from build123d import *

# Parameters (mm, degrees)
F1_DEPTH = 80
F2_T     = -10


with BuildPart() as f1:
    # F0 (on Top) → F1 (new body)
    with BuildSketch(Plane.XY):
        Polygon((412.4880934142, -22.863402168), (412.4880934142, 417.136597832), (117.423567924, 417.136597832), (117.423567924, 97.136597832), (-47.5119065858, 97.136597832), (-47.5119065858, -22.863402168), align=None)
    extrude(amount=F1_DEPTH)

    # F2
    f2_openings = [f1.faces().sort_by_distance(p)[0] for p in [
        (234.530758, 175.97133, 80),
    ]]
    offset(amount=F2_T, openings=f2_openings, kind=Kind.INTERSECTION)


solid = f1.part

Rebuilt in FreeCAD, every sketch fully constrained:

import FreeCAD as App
import Part
import Sketcher
from FreeCAD import Vector


def faces_at(feature, points):
    """Names of the faces that lie closest to the given points."""
    faces = feature.Shape.Faces
    near = lambda p: min(range(len(faces)), key=lambda i: faces[i].distToShape(Part.Vertex(*p))[0])
    return sorted({f"Face{near(p) + 1}" for p in points})

doc = App.newDocument("Part")
body = doc.addObject("PartDesign::Body", "Body")

# Sketch on XY plane
sketch1 = doc.addObject("Sketcher::SketchObject", "Sketch")
body.addObject(sketch1)
sketch1.AttachmentSupport = (doc.XY_Plane, [""])
sketch1.MapMode = "FlatFace"
sketch1.addGeometry([
    Part.LineSegment(Vector(412, -23, 0), Vector(412, 417, 0)),  # 0
    Part.LineSegment(Vector(412, 417, 0), Vector(117, 417, 0)),  # 1
    Part.LineSegment(Vector(117, 417, 0), Vector(117, 97, 0)),  # 2
    Part.LineSegment(Vector(117, 97, 0), Vector(-48, 97, 0)),  # 3
    Part.LineSegment(Vector(-48, 97, 0), Vector(-48, -23, 0)),  # 4
    Part.LineSegment(Vector(-48, -23, 0), Vector(412, -23, 0)),  # 5
], False)
sketch1.addConstraint([
    Sketcher.Constraint("Coincident", 0, 2, 1, 1),
    Sketcher.Constraint("Coincident", 1, 2, 2, 1),
    Sketcher.Constraint("Coincident", 2, 2, 3, 1),
    Sketcher.Constraint("Coincident", 3, 2, 4, 1),
    Sketcher.Constraint("Coincident", 4, 2, 5, 1),
    Sketcher.Constraint("Coincident", 5, 2, 0, 1),
    Sketcher.Constraint("Vertical", 0),
    Sketcher.Constraint("Horizontal", 1),
    Sketcher.Constraint("Vertical", 2),
    Sketcher.Constraint("Horizontal", 3),
    Sketcher.Constraint("Vertical", 4),
    Sketcher.Constraint("Horizontal", 5),
    Sketcher.Constraint("DistanceX", 5, 1, 5, 2, 460.0),
    Sketcher.Constraint("DistanceY", 0, 1, 0, 2, 440.0),
    Sketcher.Constraint("DistanceY", 2, 2, 2, 1, 320.0),
    Sketcher.Constraint("DistanceX", 1, 2, 1, 1, 295.064525),
    Sketcher.Constraint("DistanceX", -1, 1, 0, 2, 412.488093),
    Sketcher.Constraint("DistanceY", -1, 1, 0, 2, 417.136598),
])
pad1 = doc.addObject("PartDesign::Pad", "Pad")
body.addObject(pad1)
pad1.Profile = sketch1
pad1.Length = 80
doc.recompute()

thickness = doc.addObject("PartDesign::Thickness", "Thickness")
body.addObject(thickness)
thickness.Base = (pad1, faces_at(pad1, [(182.488, 197.137, 80)]))
thickness.Value = 10
thickness.Reversed = True
thickness.Join = "Intersection"

doc.recompute()
